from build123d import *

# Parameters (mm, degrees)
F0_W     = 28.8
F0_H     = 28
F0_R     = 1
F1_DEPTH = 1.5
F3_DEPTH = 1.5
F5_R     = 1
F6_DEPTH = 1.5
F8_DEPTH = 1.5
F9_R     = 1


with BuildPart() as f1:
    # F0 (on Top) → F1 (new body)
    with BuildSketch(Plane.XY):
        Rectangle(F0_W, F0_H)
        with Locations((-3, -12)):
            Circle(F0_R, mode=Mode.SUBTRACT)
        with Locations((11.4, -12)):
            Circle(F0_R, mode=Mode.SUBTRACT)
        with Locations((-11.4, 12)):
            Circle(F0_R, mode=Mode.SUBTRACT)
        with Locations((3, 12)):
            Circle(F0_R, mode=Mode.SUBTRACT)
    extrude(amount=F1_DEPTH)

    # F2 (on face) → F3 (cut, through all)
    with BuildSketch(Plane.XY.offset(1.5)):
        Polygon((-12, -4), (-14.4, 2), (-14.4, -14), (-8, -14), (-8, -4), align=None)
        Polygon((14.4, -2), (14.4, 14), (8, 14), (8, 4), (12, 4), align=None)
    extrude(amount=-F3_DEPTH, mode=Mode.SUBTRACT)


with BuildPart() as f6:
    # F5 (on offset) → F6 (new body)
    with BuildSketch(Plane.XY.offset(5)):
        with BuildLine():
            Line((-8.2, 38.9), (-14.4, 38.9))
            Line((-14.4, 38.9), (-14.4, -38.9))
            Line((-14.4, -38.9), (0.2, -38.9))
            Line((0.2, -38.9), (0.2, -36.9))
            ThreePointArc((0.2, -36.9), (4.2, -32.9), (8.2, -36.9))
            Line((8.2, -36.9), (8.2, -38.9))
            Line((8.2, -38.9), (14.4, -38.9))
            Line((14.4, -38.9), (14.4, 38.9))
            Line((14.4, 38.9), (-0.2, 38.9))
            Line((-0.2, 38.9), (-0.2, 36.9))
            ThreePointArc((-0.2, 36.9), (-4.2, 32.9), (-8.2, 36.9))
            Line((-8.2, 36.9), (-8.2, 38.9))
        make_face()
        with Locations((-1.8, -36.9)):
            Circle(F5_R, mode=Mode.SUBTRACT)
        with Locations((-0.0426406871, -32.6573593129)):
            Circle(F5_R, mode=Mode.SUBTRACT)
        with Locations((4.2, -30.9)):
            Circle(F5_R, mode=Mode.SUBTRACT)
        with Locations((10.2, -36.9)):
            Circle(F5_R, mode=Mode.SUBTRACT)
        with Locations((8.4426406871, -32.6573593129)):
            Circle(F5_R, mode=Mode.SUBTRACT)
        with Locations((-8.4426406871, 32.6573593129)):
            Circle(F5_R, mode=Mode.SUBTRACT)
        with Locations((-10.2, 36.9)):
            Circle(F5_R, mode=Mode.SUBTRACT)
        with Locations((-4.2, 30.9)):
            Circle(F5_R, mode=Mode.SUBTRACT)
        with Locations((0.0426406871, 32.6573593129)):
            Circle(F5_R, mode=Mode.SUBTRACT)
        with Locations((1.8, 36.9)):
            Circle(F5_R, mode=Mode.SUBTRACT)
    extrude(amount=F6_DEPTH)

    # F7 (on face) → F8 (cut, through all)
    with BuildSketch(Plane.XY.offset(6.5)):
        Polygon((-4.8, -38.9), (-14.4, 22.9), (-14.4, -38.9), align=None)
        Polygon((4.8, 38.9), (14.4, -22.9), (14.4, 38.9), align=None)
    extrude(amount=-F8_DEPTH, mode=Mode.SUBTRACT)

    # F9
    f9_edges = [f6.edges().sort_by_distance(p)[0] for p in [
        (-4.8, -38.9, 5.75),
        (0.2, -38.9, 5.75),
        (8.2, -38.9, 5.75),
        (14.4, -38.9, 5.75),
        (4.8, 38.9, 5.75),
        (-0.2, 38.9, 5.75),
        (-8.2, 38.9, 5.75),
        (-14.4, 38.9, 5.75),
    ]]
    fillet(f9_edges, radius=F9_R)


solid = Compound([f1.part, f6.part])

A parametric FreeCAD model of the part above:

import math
import FreeCAD as App
import Part
import Sketcher

V = App.Vector


def edges_at(feature, points):
    """Names of the edges that pass closest to the given points."""
    edges = feature.Shape.Edges
    near = lambda p: min(range(len(edges)), key=lambda i: edges[i].distToShape(Part.Vertex(*p))[0])
    return sorted({f"Edge{near(p) + 1}" for p in points})

doc = App.newDocument("Part")
body = doc.addObject("PartDesign::Body", "Body")

sketch1 = body.newObject("Sketcher::SketchObject", "Sketch")
sketch1.AttachmentSupport = (doc.getObject("XY_Plane"), [""])
sketch1.MapMode = "FlatFace"
sketch1.addGeometry(Part.LineSegment(V(-14.4, 14, 0), V(-14.4, -14, 0)), False)
sketch1.addGeometry(Part.LineSegment(V(-14.4, -14, 0), V(14.4, -14, 0)), False)
sketch1.addGeometry(Part.LineSegment(V(14.4, -14, 0), V(14.4, 14, 0)), False)
sketch1.addGeometry(Part.LineSegment(V(14.4, 14, 0), V(-14.4, 14, 0)), False)
sketch1.addGeometry(Part.Circle(V(-3, -12, 0), V(0, 0, 1), 1), False)
sketch1.addGeometry(Part.Circle(V(11.4, -12, 0), V(0, 0, 1), 1), False)
sketch1.addGeometry(Part.Circle(V(-11.4, 12, 0), V(0, 0, 1), 1), False)
sketch1.addGeometry(Part.Circle(V(3, 12, 0), V(0, 0, 1), 1), False)
sketch1.addConstraint(Sketcher.Constraint("Coincident", 0, 2, 1, 1))
sketch1.addConstraint(Sketcher.Constraint("Coincident", 1, 2, 2, 1))
sketch1.addConstraint(Sketcher.Constraint("Coincident", 2, 2, 3, 1))
sketch1.addConstraint(Sketcher.Constraint("Coincident", 3, 2, 0, 1))
sketch1.addConstraint(Sketcher.Constraint("Vertical", 0))
sketch1.addConstraint(Sketcher.Constraint("Horizontal", 1))
sketch1.addConstraint(Sketcher.Constraint("Vertical", 2))
sketch1.addConstraint(Sketcher.Constraint("Horizontal", 3))
sketch1.addConstraint(Sketcher.Constraint("Equal", 4, 5))
sketch1.addConstraint(Sketcher.Constraint("Equal", 5, 6))
sketch1.addConstraint(Sketcher.Constraint("Equal", 6, 7))
sketch1.addConstraint(Sketcher.Constraint("Symmetric", 5, 3, 6, 3, -1, 1))
sketch1.addConstraint(Sketcher.Constraint("Symmetric", 4, 3, 7, 3, -1, 1))
sketch1.addConstraint(Sketcher.Constraint("Symmetric", 0, 2, 2, 2, -1, 1))
sketch1.addConstraint(Sketcher.Constraint("Horizontal", 4, 3, 5, 3))
sketch1.addConstraint(Sketcher.Constraint("Diameter", 4, 2.0))
sketch1.addConstraint(Sketcher.Constraint("DistanceY", 0, 2, 0, 1, 28.0))
sketch1.addConstraint(Sketcher.Constraint("DistanceX", 1, 1, 1, 2, 28.8))
sketch1.addConstraint(Sketcher.Constraint("DistanceX", 4, 3, -1, 1, 3.0))
sketch1.addConstraint(Sketcher.Constraint("DistanceY", 4, 3, -1, 1, 12.0))
sketch1.addConstraint(Sketcher.Constraint("DistanceX", 0, 2, 6, 3, 3.0))
pad1 = body.newObject("PartDesign::Pad", "Pad")
pad1.Profile = sketch1
pad1.Length = 1.5

sketch2 = body.newObject("Sketcher::SketchObject", "Sketch001")
sketch2.AttachmentSupport = (doc.getObject("XY_Plane"), [""])
sketch2.MapMode = "FlatFace"
sketch2.AttachmentOffset = App.Placement(V(0, 0, 1.5), App.Rotation())
sketch2.addGeometry(Part.LineSegment(V(-12, -4, 0), V(-14.4, 2, 0)), False)
sketch2.addGeometry(Part.LineSegment(V(-14.4, 2, 0), V(-14.4, -14, 0)), False)
sketch2.addGeometry(Part.LineSegment(V(-14.4, -14, 0), V(-8, -14, 0)), False)
sketch2.addGeometry(Part.LineSegment(V(-8, -14, 0), V(-8, -4, 0)), False)
sketch2.addGeometry(Part.LineSegment(V(-8, -4, 0), V(-12, -4, 0)), False)
sketch2.addGeometry(Part.LineSegment(V(14.4, -2, 0), V(14.4, 14, 0)), False)
sketch2.addGeometry(Part.LineSegment(V(14.4, 14, 0), V(8, 14, 0)), False)
sketch2.addGeometry(Part.LineSegment(V(8, 14, 0), V(8, 4, 0)), False)
sketch2.addGeometry(Part.LineSegment(V(8, 4, 0), V(12, 4, 0)), False)
sketch2.addGeometry(Part.LineSegment(V(12, 4, 0), V(14.4, -2, 0)), False)
sketch2.addConstraint(Sketcher.Constraint("Coincident", 0, 2, 1, 1))
sketch2.addConstraint(Sketcher.Constraint("Coincident", 1, 2, 2, 1))
sketch2.addConstraint(Sketcher.Constraint("Coincident", 2, 2, 3, 1))
sketch2.addConstraint(Sketcher.Constraint("Coincident", 3, 2, 4, 1))
sketch2.addConstraint(Sketcher.Constraint("Coincident", 4, 2, 0, 1))
sketch2.addConstraint(Sketcher.Constraint("Coincident", 5, 2, 6, 1))
sketch2.addConstraint(Sketcher.Constraint("Coincident", 6, 2, 7, 1))
sketch2.addConstraint(Sketcher.Constraint("Coincident", 7, 2, 8, 1))
sketch2.addConstraint(Sketcher.Constraint("Coincident", 8, 2, 9, 1))
sketch2.addConstraint(Sketcher.Constraint("Coincident", 9, 2, 5, 1))
sketch2.addConstraint(Sketcher.Constraint("Vertical", 1))
sketch2.addConstraint(Sketcher.Constraint("Horizontal", 2))
sketch2.addConstraint(Sketcher.Constraint("Vertical", 3))
sketch2.addConstraint(Sketcher.Constraint("Horizontal", 4))
sketch2.addConstraint(Sketcher.Constraint("Vertical", 5))
sketch2.addConstraint(Sketcher.Constraint("Horizontal", 6))
sketch2.addConstraint(Sketcher.Constraint("Vertical", 7))
sketch2.addConstraint(Sketcher.Constraint("Horizontal", 8))
sketch2.addConstraint(Sketcher.Constraint("Symmetric", 1, 2, 5, 2, -1, 1))
sketch2.addConstraint(Sketcher.Constraint("Symmetric", 3, 2, 7, 2, -1, 1))
sketch2.addConstraint(Sketcher.Constraint("Parallel", 0, 9))
sketch2.addConstraint(Sketcher.Constraint("Equal", 4, 8))
sketch2.addConstraint(Sketcher.Constraint("DistanceX", 4, 2, 4, 1, 4.0))
sketch2.addConstraint(Sketcher.Constraint("DistanceY", 1, 2, 1, 1, 16.0))
sketch2.addConstraint(Sketcher.Constraint("DistanceY", 3, 1, 3, 2, 10.0))
sketch2.addConstraint(Sketcher.Constraint("DistanceX", 2, 1, 2, 2, 6.4))
sketch2.addConstraint(Sketcher.Constraint("DistanceY", -1, 1, 0, 2, 2.0))
sketch2.addConstraint(Sketcher.Constraint("DistanceX", 2, 2, -1, 1, 8.0))
pocket1 = body.newObject("PartDesign::Pocket", "Pocket")
pocket1.Profile = sketch2
pocket1.Type = "ThroughAll"
body2 = doc.addObject("PartDesign::Body", "Body001")

sketch3 = body2.newObject("Sketcher::SketchObject", "Sketch002")
sketch3.AttachmentSupport = (doc.getObject("XY_Plane001"), [""])
sketch3.MapMode = "FlatFace"
sketch3.AttachmentOffset = App.Placement(V(0, 0, 5), App.Rotation())
sketch3.addGeometry(Part.LineSegment(V(-8.2, 38.9, 0), V(-14.4, 38.9, 0)), False)
sketch3.addGeometry(Part.LineSegment(V(-14.4, 38.9, 0), V(-14.4, -38.9, 0)), False)
sketch3.addGeometry(Part.LineSegment(V(-14.4, -38.9, 0), V(0.2, -38.9, 0)), False)
sketch3.addGeometry(Part.LineSegment(V(0.2, -38.9, 0), V(0.2, -36.9, 0)), False)
sketch3.addGeometry(Part.ArcOfCircle(Part.Circle(V(4.2, -36.9, 0), V(0, 0, 1), 4), math.radians(0), math.radians(180)), False)
sketch3.addGeometry(Part.LineSegment(V(8.2, -36.9, 0), V(8.2, -38.9, 0)), False)
sketch3.addGeometry(Part.LineSegment(V(8.2, -38.9, 0), V(14.4, -38.9, 0)), False)
sketch3.addGeometry(Part.LineSegment(V(14.4, -38.9, 0), V(14.4, 38.9, 0)), False)
sketch3.addGeometry(Part.LineSegment(V(14.4, 38.9, 0), V(-0.2, 38.9, 0)), False)
sketch3.addGeometry(Part.LineSegment(V(-0.2, 38.9, 0), V(-0.2, 36.9, 0)), False)
sketch3.addGeometry(Part.ArcOfCircle(Part.Circle(V(-4.2, 36.9, 0), V(0, 0, 1), 4), math.radians(180), math.radians(360)), False)
sketch3.addGeometry(Part.LineSegment(V(-8.2, 36.9, 0), V(-8.2, 38.9, 0)), False)
sketch3.addGeometry(Part.Circle(V(-1.8, -36.9, 0), V(0, 0, 1), 1), False)
sketch3.addGeometry(Part.Circle(V(0, -32.7, 0), V(0, 0, 1), 1), False)
sketch3.addGeometry(Part.Circle(V(4.2, -30.9, 0), V(0, 0, 1), 1), False)
sketch3.addGeometry(Part.Circle(V(10.2, -36.9, 0), V(0, 0, 1), 1), False)
sketch3.addGeometry(Part.Circle(V(8.4, -32.7, 0), V(0, 0, 1), 1), False)
sketch3.addGeometry(Part.Circle(V(-8.4, 32.7, 0), V(0, 0, 1), 1), False)
sketch3.addGeometry(Part.Circle(V(-10.2, 36.9, 0), V(0, 0, 1), 1), False)
sketch3.addGeometry(Part.Circle(V(-4.2, 30.9, 0), V(0, 0, 1), 1), False)
sketch3.addGeometry(Part.Circle(V(0, 32.7, 0), V(0, 0, 1), 1), False)
sketch3.addGeometry(Part.Circle(V(1.8, 36.9, 0), V(0, 0, 1), 1), False)
sketch3.addConstraint(Sketcher.Constraint("Coincident", 0, 2, 1, 1))
sketch3.addConstraint(Sketcher.Constraint("Coincident", 1, 2, 2, 1))
sketch3.addConstraint(Sketcher.Constraint("Coincident", 2, 2, 3, 1))
sketch3.addConstraint(Sketcher.Constraint("Tangent", 3, 2, 4, 2))
sketch3.addConstraint(Sketcher.Constraint("Tangent", 4, 1, 5, 1))
sketch3.addConstraint(Sketcher.Constraint("Coincident", 5, 2, 6, 1))
sketch3.addConstraint(Sketcher.Constraint("Coincident", 6, 2, 7, 1))
sketch3.addConstraint(Sketcher.Constraint("Coincident", 7, 2, 8, 1))
sketch3.addConstraint(Sketcher.Constraint("Coincident", 8, 2, 9, 1))
sketch3.addConstraint(Sketcher.Constraint("Tangent", 9, 2, 10, 2))
sketch3.addConstraint(Sketcher.Constraint("Tangent", 10, 1, 11, 1))
sketch3.addConstraint(Sketcher.Constraint("Coincident", 11, 2, 0, 1))
sketch3.addConstraint(Sketcher.Constraint("Horizontal", 0))
sketch3.addConstraint(Sketcher.Constraint("Vertical", 1))
sketch3.addConstraint(Sketcher.Constraint("Horizontal", 2))
sketch3.addConstraint(Sketcher.Constraint("Vertical", 3))
sketch3.addConstraint(Sketcher.Constraint("Vertical", 5))
sketch3.addConstraint(Sketcher.Constraint("Horizontal", 6))
sketch3.addConstraint(Sketcher.Constraint("Vertical", 7))
sketch3.addConstraint(Sketcher.Constraint("Horizontal", 8))
sketch3.addConstraint(Sketcher.Constraint("Vertical", 9))
sketch3.addConstraint(Sketcher.Constraint("Vertical", 11))
sketch3.addConstraint(Sketcher.Constraint("Equal", 4, 10))
sketch3.addConstraint(Sketcher.Constraint("Equal", 12, 13))
sketch3.addConstraint(Sketcher.Constraint("Equal", 13, 14))
sketch3.addConstraint(Sketcher.Constraint("Equal", 14, 15))
sketch3.addConstraint(Sketcher.Constraint("Equal", 15, 16))
sketch3.addConstraint(Sketcher.Constraint("Equal", 16, 17))
sketch3.addConstraint(Sketcher.Constraint("Equal", 17, 18))
sketch3.addConstraint(Sketcher.Constraint("Equal", 18, 19))
sketch3.addConstraint(Sketcher.Constraint("Equal", 19, 20))
sketch3.addConstraint(Sketcher.Constraint("Equal", 20, 21))
sketch3.addConstraint(Sketcher.Constraint("Symmetric", 4, 3, 10, 3, -1, 1))
sketch3.addConstraint(Sketcher.Constraint("Symmetric", 16, 3, 17, 3, -1, 1))
sketch3.addConstraint(Sketcher.Constraint("Symmetric", 15, 3, 18, 3, -1, 1))
sketch3.addConstraint(Sketcher.Constraint("Symmetric", 14, 3, 19, 3, -1, 1))
sketch3.addConstraint(Sketcher.Constraint("Symmetric", 13, 3, 20, 3, -1, 1))
sketch3.addConstraint(Sketcher.Constraint("Symmetric", 12, 3, 21, 3, -1, 1))
sketch3.addConstraint(Sketcher.Constraint("Symmetric", 0, 2, 6, 2, -1, 1))
sketch3.addConstraint(Sketcher.Constraint("Horizontal", 4, 3, 12, 3))
sketch3.addConstraint(Sketcher.Constraint("Horizontal", 12, 3, 15, 3))
sketch3.addConstraint(Sketcher.Constraint("Horizontal", 13, 3, 16, 3))
sketch3.addConstraint(Sketcher.Constraint("Horizontal", 2, 2, 5, 2))
sketch3.addConstraint(Sketcher.Constraint("Horizontal", 0, 2, 7, 2))
sketch3.addConstraint(Sketcher.Constraint("Vertical", 4, 3, 14, 3))
sketch3.addConstraint(Sketcher.Constraint("Diameter", 12, 2.0))
sketch3.addConstraint(Sketcher.Constraint("Radius", 4, 4.0))
sketch3.addConstraint(Sketcher.Constraint("DistanceY", 3, 1, 3, 2, 2.0))
sketch3.addConstraint(Sketcher.Constraint("DistanceX", 0, 2, 0, 1, 6.2))
sketch3.addConstraint(Sketcher.Constraint("DistanceX", 2, 1, 2, 2, 14.6))
sketch3.addConstraint(Sketcher.Constraint("DistanceY", 1, 2, 1, 1, 77.8))
sketch3.addConstraint(Sketcher.Constraint("DistanceX", 12, 3, 4, 3, 6.0))
sketch3.addConstraint(Sketcher.Constraint("DistanceY", 4, 3, 14, 3, 6.0))
sketch3.addConstraint(Sketcher.Constraint("DistanceX", 4, 3, 15, 3, 6.0))
sketch3.addConstraint(Sketcher.Constraint("DistanceX", 17, 3, 13, 3, 8.4))
sketch3.addConstraint(Sketcher.Constraint("DistanceX", 13, 3, -1, 1, 0.042641))
sketch3.addConstraint(Sketcher.Constraint("DistanceY", 13, 3, -1, 1, 32.657359))
pad2 = body2.newObject("PartDesign::Pad", "Pad001")
pad2.Profile = sketch3
pad2.Length = 1.5

sketch4 = body2.newObject("Sketcher::SketchObject", "Sketch003")
sketch4.AttachmentSupport = (doc.getObject("XY_Plane001"), [""])
sketch4.MapMode = "FlatFace"
sketch4.AttachmentOffset = App.Placement(V(0, 0, 6.5), App.Rotation())
sketch4.addGeometry(Part.LineSegment(V(-5, -39, 0), V(-14, 23, 0)), False)
sketch4.addGeometry(Part.LineSegment(V(-14, 23, 0), V(-14, -39, 0)), False)
sketch4.addGeometry(Part.LineSegment(V(-14, -39, 0), V(-5, -39, 0)), False)
sketch4.addGeometry(Part.LineSegment(V(5, 39, 0), V(14, -23, 0)), False)
sketch4.addGeometry(Part.LineSegment(V(14, -23, 0), V(14, 39, 0)), False)
sketch4.addGeometry(Part.LineSegment(V(14, 39, 0), V(5, 39, 0)), False)
sketch4.addConstraint(Sketcher.Constraint("Coincident", 0, 2, 1, 1))
sketch4.addConstraint(Sketcher.Constraint("Coincident", 1, 2, 2, 1))
sketch4.addConstraint(Sketcher.Constraint("Coincident", 2, 2, 0, 1))
sketch4.addConstraint(Sketcher.Constraint("Coincident", 3, 2, 4, 1))
sketch4.addConstraint(Sketcher.Constraint("Coincident", 4, 2, 5, 1))
sketch4.addConstraint(Sketcher.Constraint("Coincident", 5, 2, 3, 1))
sketch4.addConstraint(Sketcher.Constraint("Vertical", 1))
sketch4.addConstraint(Sketcher.Constraint("Horizontal", 2))
sketch4.addConstraint(Sketcher.Constraint("Vertical", 4))
sketch4.addConstraint(Sketcher.Constraint("Horizontal", 5))
sketch4.addConstraint(Sketcher.Constraint("Symmetric", 0, 2, 3, 2, -1, 1))
sketch4.addConstraint(Sketcher.Constraint("Symmetric", 2, 2, 5, 2, -1, 1))
sketch4.addConstraint(Sketcher.Constraint("DistanceX", 2, 1, 2, 2, 9.6))
sketch4.addConstraint(Sketcher.Constraint("DistanceY", 1, 2, 1, 1, 61.8))
sketch4.addConstraint(Sketcher.Constraint("DistanceY", 2, 2, 3, 2, 16.0))
sketch4.addConstraint(Sketcher.Constraint("DistanceX", 0, 2, -1, 1, 14.4))
pocket2 = body2.newObject("PartDesign::Pocket", "Pocket001")
pocket2.Profile = sketch4
pocket2.Type = "ThroughAll"
doc.recompute()

fillet = body2.newObject("PartDesign::Fillet", "Fillet")
fillet.Base = (pocket2, edges_at(pocket2, [
    (-4.8, -38.9, 5.75),
    (0.2, -38.9, 5.75),
    (8.2, -38.9, 5.75),
    (14.4, -38.9, 5.75),
    (4.8, 38.9, 5.75),
    (-0.2, 38.9, 5.75),
    (-8.2, 38.9, 5.75),
    (-14.4, 38.9, 5.75),
]))
fillet.Radius = 1

doc.recompute()
